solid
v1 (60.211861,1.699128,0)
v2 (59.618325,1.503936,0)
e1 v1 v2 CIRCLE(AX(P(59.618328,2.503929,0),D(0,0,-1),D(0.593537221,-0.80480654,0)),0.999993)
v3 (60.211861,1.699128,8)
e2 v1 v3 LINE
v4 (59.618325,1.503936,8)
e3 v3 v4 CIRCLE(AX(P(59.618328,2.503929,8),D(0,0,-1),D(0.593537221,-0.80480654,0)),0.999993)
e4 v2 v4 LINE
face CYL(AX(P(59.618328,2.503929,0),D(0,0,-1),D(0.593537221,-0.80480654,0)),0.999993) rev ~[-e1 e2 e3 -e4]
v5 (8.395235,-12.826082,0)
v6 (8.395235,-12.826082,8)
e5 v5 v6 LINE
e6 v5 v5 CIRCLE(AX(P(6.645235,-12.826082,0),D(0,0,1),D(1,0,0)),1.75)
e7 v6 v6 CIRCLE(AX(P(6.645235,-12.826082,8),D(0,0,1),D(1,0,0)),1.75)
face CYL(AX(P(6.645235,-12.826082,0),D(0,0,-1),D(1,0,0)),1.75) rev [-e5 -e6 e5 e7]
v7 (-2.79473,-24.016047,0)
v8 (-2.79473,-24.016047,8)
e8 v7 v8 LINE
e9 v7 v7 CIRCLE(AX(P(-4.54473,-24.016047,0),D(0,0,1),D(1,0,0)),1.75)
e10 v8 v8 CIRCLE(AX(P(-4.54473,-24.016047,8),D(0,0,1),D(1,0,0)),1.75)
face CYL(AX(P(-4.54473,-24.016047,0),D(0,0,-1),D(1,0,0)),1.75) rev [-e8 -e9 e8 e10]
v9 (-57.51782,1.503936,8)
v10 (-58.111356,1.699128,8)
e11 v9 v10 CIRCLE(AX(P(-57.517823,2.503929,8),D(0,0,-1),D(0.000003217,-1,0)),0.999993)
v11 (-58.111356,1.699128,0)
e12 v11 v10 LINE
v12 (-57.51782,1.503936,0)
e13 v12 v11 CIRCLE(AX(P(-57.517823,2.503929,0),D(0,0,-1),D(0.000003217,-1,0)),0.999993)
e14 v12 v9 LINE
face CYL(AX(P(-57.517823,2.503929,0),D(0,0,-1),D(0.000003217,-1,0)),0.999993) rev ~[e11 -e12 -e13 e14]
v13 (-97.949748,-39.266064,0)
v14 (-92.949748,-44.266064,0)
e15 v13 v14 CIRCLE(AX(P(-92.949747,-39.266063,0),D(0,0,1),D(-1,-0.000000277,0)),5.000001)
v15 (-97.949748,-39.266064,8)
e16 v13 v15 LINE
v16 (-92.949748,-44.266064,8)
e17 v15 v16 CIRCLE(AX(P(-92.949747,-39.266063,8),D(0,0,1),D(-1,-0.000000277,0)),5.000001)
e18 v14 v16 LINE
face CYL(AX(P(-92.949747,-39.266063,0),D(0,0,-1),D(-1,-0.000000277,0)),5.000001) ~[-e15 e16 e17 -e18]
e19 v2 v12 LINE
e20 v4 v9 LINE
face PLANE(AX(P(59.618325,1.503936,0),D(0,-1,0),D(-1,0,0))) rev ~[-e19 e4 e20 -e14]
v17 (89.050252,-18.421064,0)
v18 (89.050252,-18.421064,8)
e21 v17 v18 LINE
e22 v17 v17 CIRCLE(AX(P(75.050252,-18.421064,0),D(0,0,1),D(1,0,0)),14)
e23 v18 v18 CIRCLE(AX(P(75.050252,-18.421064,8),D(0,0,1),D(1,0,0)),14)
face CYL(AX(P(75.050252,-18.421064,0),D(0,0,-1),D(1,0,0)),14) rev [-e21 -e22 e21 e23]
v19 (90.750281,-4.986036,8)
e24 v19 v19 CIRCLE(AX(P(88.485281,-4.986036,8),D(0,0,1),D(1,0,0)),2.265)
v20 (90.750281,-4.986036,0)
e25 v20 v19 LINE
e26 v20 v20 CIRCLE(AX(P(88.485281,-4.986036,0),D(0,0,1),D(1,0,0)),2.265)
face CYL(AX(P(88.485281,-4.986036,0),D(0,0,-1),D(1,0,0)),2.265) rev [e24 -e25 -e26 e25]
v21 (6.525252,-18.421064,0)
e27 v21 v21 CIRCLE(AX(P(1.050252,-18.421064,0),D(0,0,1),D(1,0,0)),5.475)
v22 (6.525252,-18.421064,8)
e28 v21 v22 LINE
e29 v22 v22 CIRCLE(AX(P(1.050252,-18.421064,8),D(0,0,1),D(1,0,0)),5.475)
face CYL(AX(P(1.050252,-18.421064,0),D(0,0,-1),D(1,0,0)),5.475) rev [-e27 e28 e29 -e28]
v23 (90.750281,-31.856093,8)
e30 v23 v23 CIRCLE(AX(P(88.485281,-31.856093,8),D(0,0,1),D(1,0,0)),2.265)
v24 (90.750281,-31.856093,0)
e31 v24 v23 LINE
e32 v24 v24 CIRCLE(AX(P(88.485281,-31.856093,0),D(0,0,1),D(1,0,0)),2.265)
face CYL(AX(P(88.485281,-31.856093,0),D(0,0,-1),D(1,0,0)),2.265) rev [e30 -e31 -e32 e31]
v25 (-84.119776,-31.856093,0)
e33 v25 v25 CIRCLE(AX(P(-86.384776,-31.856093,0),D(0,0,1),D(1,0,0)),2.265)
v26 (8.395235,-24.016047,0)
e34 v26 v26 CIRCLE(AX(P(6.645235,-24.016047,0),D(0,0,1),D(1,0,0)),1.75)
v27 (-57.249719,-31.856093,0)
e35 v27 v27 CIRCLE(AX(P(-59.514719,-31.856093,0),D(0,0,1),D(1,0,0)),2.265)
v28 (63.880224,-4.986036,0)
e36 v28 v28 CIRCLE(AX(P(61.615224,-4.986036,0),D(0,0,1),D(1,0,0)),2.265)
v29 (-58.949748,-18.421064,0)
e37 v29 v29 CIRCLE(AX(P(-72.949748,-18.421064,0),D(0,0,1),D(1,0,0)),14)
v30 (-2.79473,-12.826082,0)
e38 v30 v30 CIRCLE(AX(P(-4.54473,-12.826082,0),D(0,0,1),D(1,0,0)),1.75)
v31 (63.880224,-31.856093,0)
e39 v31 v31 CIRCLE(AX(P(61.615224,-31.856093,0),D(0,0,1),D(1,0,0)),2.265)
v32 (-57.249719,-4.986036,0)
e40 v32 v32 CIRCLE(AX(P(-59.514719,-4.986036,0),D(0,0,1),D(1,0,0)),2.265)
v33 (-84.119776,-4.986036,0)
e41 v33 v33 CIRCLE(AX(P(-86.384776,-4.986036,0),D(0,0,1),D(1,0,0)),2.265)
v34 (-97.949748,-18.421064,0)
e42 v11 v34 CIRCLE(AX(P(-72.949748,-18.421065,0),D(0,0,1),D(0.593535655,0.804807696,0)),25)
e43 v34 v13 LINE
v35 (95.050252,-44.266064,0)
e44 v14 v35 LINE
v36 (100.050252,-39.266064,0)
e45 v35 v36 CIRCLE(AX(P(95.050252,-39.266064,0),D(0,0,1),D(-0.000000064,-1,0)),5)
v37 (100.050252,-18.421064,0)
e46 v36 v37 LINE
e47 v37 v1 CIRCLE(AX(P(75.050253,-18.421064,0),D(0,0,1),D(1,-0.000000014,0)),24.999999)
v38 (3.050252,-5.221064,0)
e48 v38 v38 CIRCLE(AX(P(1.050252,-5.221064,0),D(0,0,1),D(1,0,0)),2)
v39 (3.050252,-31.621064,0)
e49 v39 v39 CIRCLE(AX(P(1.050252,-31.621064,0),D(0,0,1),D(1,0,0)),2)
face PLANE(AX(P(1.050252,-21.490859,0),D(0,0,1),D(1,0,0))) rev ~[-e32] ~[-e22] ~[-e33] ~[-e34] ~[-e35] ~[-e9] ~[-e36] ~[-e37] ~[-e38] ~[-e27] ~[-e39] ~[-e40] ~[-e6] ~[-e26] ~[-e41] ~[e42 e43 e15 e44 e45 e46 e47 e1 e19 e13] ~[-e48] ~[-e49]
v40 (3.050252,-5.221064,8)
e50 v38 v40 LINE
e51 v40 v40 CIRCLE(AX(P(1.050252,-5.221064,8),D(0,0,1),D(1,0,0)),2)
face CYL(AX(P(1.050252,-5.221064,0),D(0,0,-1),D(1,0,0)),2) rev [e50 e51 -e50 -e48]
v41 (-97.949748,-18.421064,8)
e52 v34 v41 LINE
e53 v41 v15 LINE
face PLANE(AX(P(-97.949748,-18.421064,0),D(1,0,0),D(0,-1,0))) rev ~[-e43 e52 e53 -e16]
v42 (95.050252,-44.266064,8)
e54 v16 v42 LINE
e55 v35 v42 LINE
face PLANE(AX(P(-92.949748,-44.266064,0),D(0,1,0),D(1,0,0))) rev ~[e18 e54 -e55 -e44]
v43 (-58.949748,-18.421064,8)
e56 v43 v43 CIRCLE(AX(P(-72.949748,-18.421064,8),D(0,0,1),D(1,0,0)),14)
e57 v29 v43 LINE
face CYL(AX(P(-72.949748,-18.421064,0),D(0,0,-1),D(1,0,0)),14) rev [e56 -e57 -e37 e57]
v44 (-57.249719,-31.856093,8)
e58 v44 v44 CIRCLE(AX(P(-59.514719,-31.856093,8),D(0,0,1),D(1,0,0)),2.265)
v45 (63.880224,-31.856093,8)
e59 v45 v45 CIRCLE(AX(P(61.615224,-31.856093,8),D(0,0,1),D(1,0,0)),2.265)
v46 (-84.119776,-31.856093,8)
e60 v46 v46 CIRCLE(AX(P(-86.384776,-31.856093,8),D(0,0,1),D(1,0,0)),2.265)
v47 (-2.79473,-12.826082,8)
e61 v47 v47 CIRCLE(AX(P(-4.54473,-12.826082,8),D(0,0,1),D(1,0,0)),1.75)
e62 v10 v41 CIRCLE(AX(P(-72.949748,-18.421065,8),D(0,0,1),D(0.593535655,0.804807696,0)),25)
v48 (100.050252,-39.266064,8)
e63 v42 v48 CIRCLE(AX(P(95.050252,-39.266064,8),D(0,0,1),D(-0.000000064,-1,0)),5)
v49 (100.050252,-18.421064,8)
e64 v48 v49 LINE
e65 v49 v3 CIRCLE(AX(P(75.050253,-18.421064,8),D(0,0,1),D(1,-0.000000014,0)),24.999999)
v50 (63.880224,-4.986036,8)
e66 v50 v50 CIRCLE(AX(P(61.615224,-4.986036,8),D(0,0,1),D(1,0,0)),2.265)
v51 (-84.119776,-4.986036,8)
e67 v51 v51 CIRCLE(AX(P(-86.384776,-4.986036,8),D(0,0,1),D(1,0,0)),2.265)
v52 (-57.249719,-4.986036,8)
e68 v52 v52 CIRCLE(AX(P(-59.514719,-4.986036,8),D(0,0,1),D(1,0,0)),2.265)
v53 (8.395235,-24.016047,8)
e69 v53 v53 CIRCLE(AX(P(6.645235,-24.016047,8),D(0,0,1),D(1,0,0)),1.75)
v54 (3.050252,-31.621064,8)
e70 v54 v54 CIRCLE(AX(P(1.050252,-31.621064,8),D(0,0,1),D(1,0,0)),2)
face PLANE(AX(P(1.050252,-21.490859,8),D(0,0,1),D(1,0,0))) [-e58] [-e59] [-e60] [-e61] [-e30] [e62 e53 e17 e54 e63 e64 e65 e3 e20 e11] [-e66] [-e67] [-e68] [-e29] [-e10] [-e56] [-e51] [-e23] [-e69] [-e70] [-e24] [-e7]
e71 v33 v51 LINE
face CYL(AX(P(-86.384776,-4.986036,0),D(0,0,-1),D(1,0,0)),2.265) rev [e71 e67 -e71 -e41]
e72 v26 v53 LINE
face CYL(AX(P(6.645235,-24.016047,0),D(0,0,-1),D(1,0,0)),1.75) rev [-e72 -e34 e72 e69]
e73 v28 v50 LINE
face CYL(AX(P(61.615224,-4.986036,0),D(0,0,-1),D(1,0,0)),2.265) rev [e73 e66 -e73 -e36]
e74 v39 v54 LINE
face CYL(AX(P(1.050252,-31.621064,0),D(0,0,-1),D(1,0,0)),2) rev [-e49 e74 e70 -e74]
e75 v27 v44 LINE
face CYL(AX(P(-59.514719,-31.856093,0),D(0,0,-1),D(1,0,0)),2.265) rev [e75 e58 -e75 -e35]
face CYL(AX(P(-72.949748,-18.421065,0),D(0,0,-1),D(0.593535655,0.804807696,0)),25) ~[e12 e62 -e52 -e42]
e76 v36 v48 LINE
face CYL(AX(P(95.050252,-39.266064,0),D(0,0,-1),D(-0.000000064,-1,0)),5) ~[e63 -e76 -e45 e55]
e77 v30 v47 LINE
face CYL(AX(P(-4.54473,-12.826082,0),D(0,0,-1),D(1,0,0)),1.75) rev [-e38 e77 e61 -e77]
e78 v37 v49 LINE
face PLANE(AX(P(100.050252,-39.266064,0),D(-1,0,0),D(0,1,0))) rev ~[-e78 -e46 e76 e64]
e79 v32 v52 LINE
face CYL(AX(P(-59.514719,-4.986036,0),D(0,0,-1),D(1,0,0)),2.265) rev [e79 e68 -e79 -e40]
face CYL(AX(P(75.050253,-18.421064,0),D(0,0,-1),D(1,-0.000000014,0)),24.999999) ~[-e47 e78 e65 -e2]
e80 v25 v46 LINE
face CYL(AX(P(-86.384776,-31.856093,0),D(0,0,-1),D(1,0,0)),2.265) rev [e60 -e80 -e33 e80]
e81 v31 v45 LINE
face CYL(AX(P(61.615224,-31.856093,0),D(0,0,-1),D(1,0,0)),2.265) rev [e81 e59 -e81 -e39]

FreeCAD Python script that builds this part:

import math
import FreeCAD as App
import Part
import Sketcher
Q = App.Units.Quantity

doc = App.newDocument("Part")
body = doc.addObject("PartDesign::Body", "Body")

# Sketch on XY plane
sketch1 = body.newObject("Sketcher::SketchObject", "Sketch")
sketch1.AttachmentSupport = (doc.getObject("XY_Plane"), [""])
sketch1.MapMode = "FlatFace"
sketch1.addGeometry([
    Part.ArcOfCircle(Part.Circle(App.Vector(-57.5, 2.5, 0), App.Vector(0, 0, 1), 1), math.radians(-126), math.radians(-90)),  # 0
    Part.ArcOfCircle(Part.Circle(App.Vector(-72.9, -18.4, 0), App.Vector(0, 0, 1), 25), math.radians(54), math.radians(180)),  # 1
    Part.LineSegment(App.Vector(-97.9, -18.4, 0), App.Vector(-97.9, -39.3, 0)),  # 2
    Part.ArcOfCircle(Part.Circle(App.Vector(-92.9, -39.3, 0), App.Vector(0, 0, 1), 5), math.radians(-180), math.radians(-90)),  # 3
    Part.LineSegment(App.Vector(-92.9, -44.3, 0), App.Vector(95.1, -44.3, 0)),  # 4
    Part.ArcOfCircle(Part.Circle(App.Vector(95.1, -39.3, 0), App.Vector(0, 0, 1), 5), math.radians(-90), math.radians(0)),  # 5
    Part.LineSegment(App.Vector(100.1, -39.3, 0), App.Vector(100.1, -18.4, 0)),  # 6
    Part.ArcOfCircle(Part.Circle(App.Vector(75.1, -18.4, 0), App.Vector(0, 0, 1), 25), math.radians(0), math.radians(126)),  # 7
    Part.ArcOfCircle(Part.Circle(App.Vector(59.6, 2.5, 0), App.Vector(0, 0, 1), 1), math.radians(-90), math.radians(-54)),  # 8
    Part.LineSegment(App.Vector(59.6, 1.5, 0), App.Vector(-57.5, 1.5, 0)),  # 9
    Part.Circle(App.Vector(-86.4, -31.9, 0), App.Vector(0, 0, 1), 2.3),  # 10
    Part.Circle(App.Vector(-59.5, -31.9, 0), App.Vector(0, 0, 1), 2.3),  # 11
    Part.Circle(App.Vector(1.1, -31.6, 0), App.Vector(0, 0, 1), 2),  # 12
    Part.Circle(App.Vector(-4.5, -24, 0), App.Vector(0, 0, 1), 1.8),  # 13
    Part.Circle(App.Vector(61.6, -31.9, 0), App.Vector(0, 0, 1), 2.3),  # 14
    Part.Circle(App.Vector(88.5, -31.9, 0), App.Vector(0, 0, 1), 2.3),  # 15
    Part.Circle(App.Vector(6.6, -24, 0), App.Vector(0, 0, 1), 1.8),  # 16
    Part.Circle(App.Vector(-72.9, -18.4, 0), App.Vector(0, 0, 1), 14),  # 17
    Part.Circle(App.Vector(1.1, -18.4, 0), App.Vector(0, 0, 1), 5.5),  # 18
    Part.Circle(App.Vector(-4.5, -12.8, 0), App.Vector(0, 0, 1), 1.8),  # 19
    Part.Circle(App.Vector(-86.4, -5, 0), App.Vector(0, 0, 1), 2.3),  # 20
    Part.Circle(App.Vector(-59.5, -5, 0), App.Vector(0, 0, 1), 2.3),  # 21
    Part.Circle(App.Vector(1.1, -5.2, 0), App.Vector(0, 0, 1), 2),  # 22
    Part.Circle(App.Vector(6.6, -12.8, 0), App.Vector(0, 0, 1), 1.8),  # 23
    Part.Circle(App.Vector(75.1, -18.4, 0), App.Vector(0, 0, 1), 14),  # 24
    Part.Circle(App.Vector(61.6, -5, 0), App.Vector(0, 0, 1), 2.3),  # 25
    Part.Circle(App.Vector(88.5, -5, 0), App.Vector(0, 0, 1), 2.3),  # 26
], False)
sketch1.addConstraint([
    Sketcher.Constraint("Tangent", 0, 1, 1, 1),
    Sketcher.Constraint("Tangent", 1, 2, 2, 1),
    Sketcher.Constraint("Tangent", 2, 2, 3, 1),
    Sketcher.Constraint("Tangent", 3, 2, 4, 1),
    Sketcher.Constraint("Tangent", 4, 2, 5, 1),
    Sketcher.Constraint("Tangent", 5, 2, 6, 1),
    Sketcher.Constraint("Tangent", 6, 2, 7, 1),
    Sketcher.Constraint("Tangent", 7, 2, 8, 2),
    Sketcher.Constraint("Coincident", 8, 1, 9, 1),
    Sketcher.Constraint("Coincident", 9, 2, 0, 2),
    Sketcher.Constraint("Vertical", 2),
    Sketcher.Constraint("Horizontal", 4),
    Sketcher.Constraint("Vertical", 6),
    Sketcher.Constraint("Horizontal", 9),
    Sketcher.Constraint("Coincident", 17, 3, 1, 3),
    Sketcher.Constraint("Coincident", 24, 3, 7, 3),
    Sketcher.Constraint("Equal", 3, 5),
    Sketcher.Constraint("Equal", 1, 7),
    Sketcher.Constraint("Equal", 0, 8),
    Sketcher.Constraint("Equal", 10, 11),
    Sketcher.Constraint("Equal", 11, 14),
    Sketcher.Constraint("Equal", 14, 15),
    Sketcher.Constraint("Equal", 13, 16),
    Sketcher.Constraint("Equal", 16, 19),
    Sketcher.Constraint("Equal", 15, 20),
    Sketcher.Constraint("Equal", 20, 21),
    Sketcher.Constraint("Equal", 12, 22),
    Sketcher.Constraint("Equal", 19, 23),
    Sketcher.Constraint("Equal", 17, 24),
    Sketcher.Constraint("Equal", 21, 25),
    Sketcher.Constraint("Equal", 25, 26),
    Sketcher.Constraint("Horizontal", 1, 3, 7, 3),
    Sketcher.Constraint("Horizontal", 10, 3, 11, 3),
    Sketcher.Constraint("Horizontal", 11, 3, 14, 3),
    Sketcher.Constraint("Horizontal", 14, 3, 15, 3),
    Sketcher.Constraint("Horizontal", 13, 3, 16, 3),
    Sketcher.Constraint("Horizontal", 17, 3, 18, 3),
    Sketcher.Constraint("Horizontal", 20, 3, 21, 3),
    Sketcher.Constraint("Horizontal", 19, 3, 23, 3),
    Sketcher.Constraint("Horizontal", 21, 3, 25, 3),
    Sketcher.Constraint("Horizontal", 25, 3, 26, 3),
    Sketcher.Constraint("Vertical", 12, 3, 18, 3),
    Sketcher.Constraint("Vertical", 13, 3, 19, 3),
    Sketcher.Constraint("Vertical", 10, 3, 20, 3),
    Sketcher.Constraint("Vertical", 11, 3, 21, 3),
    Sketcher.Constraint("Vertical", 18, 3, 22, 3),
    Sketcher.Constraint("Vertical", 16, 3, 23, 3),
    Sketcher.Constraint("Vertical", 14, 3, 25, 3),
    Sketcher.Constraint("Vertical", 15, 3, 26, 3),
    Sketcher.Constraint("Diameter", 12, Q("4 mm")),
    Sketcher.Constraint("Diameter", 17, Q("28 mm")),
    Sketcher.Constraint("Radius", 1, Q("25 mm")),
    Sketcher.Constraint("Radius", 3, Q("5.000001 mm")),
    Sketcher.Constraint("Diameter", 13, Q("3.5 mm")),
    Sketcher.Constraint("Diameter", 10, Q("4.53 mm")),
    Sketcher.Constraint("Diameter", 18, Q("10.95 mm")),
    Sketcher.Constraint("DistanceX", 4, 1, 4, 2, Q("188 mm")),
    Sketcher.Constraint("DistanceX", 1, 3, 12, 3, Q("74 mm")),
    Sketcher.Constraint("DistanceY", 12, 3, 1, 3, Q("13.199999 mm")),
    Sketcher.Constraint("DistanceY", 18, 3, 22, 3, Q("13.2 mm")),
    Sketcher.Constraint("DistanceY", 2, 2, 2, 1, Q("20.845 mm")),
    Sketcher.Constraint("Radius", 0, Q("0.999993 mm")),
    Sketcher.Constraint("DistanceY", 24, 3, 8, 1, Q("19.925 mm")),
    Sketcher.Constraint("DistanceX", 8, 1, 25, 3, Q("1.996899 mm")),
    Sketcher.Constraint("DistanceX", 21, 3, 9, 2, Q("1.996899 mm")),
    Sketcher.Constraint("DistanceX", 9, 2, 9, 1, Q("117.136145 mm")),
    Sketcher.Constraint("DistanceY", -1, 1, 0, 3, Q("2.503929 mm")),
    Sketcher.Constraint("DistanceX", -1, 1, 8, 3, Q("59.618328 mm")),
    Sketcher.Constraint("DistanceX", 11, 3, -1, 1, Q("59.514719 mm")),
    Sketcher.Constraint("DistanceX", 13, 3, -1, 1, Q("4.54473 mm")),
    Sketcher.Constraint("DistanceX", -1, 1, 15, 3, Q("88.485281 mm")),
    Sketcher.Constraint("DistanceX", 3, 3, 10, 3, Q("6.564971 mm")),
    Sketcher.Constraint("DistanceY", 3, 3, 10, 3, Q("7.40997 mm")),
    Sketcher.Constraint("DistanceX", 16, 3, 14, 3, Q("54.969989 mm")),
    Sketcher.Constraint("DistanceY", 19, 3, 0, 3, Q("15.330011 mm")),
    Sketcher.Constraint("DistanceY", 17, 3, 20, 3, Q("13.435028 mm")),
    Sketcher.Constraint("DistanceY", 13, 3, -1, 1, Q("24.016047 mm")),
])
pad1 = body.newObject("PartDesign::Pad", "Pad")
pad1.Profile = sketch1
pad1.Length = 8

doc.recompute()
